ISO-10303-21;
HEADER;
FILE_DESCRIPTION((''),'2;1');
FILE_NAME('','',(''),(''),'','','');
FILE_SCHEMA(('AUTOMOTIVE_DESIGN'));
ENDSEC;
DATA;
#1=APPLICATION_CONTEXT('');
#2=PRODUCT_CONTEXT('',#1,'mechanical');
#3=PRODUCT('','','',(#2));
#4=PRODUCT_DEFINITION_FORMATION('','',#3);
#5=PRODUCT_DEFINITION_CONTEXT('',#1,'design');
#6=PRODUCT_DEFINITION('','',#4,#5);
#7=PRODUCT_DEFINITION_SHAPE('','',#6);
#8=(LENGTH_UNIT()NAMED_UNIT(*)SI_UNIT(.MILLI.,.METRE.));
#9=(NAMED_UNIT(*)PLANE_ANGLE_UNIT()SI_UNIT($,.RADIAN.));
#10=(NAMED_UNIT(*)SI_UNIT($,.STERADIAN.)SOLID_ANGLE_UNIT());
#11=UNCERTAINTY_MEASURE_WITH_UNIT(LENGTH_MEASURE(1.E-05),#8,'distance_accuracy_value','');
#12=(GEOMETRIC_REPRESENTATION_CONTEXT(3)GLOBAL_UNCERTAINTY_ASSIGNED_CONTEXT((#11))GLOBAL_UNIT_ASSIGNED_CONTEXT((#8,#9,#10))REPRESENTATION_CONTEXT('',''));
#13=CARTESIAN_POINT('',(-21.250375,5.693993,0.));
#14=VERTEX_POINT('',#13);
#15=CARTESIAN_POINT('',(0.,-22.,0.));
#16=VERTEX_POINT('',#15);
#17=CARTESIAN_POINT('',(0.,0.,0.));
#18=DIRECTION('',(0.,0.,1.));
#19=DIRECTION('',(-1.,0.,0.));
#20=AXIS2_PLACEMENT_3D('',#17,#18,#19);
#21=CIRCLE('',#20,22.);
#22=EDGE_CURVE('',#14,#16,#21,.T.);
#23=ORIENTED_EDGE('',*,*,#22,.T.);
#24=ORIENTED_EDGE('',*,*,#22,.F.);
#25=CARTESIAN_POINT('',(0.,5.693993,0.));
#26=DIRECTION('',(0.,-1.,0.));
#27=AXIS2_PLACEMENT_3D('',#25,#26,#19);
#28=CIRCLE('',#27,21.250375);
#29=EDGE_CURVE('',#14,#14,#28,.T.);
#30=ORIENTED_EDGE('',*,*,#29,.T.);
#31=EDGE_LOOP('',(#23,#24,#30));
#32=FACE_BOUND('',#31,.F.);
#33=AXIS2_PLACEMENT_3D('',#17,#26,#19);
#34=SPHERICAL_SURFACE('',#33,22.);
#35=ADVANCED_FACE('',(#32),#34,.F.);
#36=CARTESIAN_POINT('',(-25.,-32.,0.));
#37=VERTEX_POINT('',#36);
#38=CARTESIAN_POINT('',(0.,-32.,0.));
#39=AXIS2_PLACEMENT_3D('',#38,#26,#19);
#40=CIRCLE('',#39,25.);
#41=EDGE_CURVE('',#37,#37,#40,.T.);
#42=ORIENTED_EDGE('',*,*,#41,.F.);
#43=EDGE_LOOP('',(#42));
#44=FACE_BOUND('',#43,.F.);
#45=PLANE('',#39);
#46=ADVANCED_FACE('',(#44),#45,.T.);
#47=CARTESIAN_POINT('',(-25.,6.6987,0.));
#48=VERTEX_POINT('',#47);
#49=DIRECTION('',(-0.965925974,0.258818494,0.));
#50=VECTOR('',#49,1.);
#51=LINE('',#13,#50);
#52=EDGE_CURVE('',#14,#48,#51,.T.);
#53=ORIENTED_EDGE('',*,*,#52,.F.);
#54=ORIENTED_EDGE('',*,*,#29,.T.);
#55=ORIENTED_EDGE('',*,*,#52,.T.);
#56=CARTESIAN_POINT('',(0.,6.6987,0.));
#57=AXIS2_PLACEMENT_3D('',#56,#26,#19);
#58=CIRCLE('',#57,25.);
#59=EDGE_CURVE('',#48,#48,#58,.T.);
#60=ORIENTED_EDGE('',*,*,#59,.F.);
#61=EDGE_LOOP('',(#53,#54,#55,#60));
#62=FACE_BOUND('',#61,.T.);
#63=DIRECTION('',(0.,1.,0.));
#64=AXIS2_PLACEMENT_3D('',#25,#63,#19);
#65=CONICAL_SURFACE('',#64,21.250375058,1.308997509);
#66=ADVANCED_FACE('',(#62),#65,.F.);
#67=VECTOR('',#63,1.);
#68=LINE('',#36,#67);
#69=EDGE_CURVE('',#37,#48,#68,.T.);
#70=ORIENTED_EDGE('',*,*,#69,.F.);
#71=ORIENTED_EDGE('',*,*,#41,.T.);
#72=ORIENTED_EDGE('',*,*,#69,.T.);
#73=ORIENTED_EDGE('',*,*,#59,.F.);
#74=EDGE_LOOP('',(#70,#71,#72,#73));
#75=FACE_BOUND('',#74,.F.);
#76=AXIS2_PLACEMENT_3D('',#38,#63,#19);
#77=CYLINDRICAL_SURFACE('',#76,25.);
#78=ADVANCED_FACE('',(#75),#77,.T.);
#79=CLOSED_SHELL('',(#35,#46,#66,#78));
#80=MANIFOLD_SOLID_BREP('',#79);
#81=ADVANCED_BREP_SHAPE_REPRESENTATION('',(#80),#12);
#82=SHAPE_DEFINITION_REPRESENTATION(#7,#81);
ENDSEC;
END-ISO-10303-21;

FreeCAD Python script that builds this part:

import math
import FreeCAD as App
import Part
import Sketcher

V = App.Vector
Q = App.Units.Quantity

doc = App.newDocument("Part")
body = doc.addObject("PartDesign::Body", "Body")

sketch1 = body.newObject("Sketcher::SketchObject", "Sketch")
sketch1.AttachmentSupport = (doc.getObject("XY_Plane"), [""])
sketch1.MapMode = "FlatFace"
sketch1.addGeometry([
    Part.LineSegment(V(0, -22, 0), V(0, -32, 0)),
    Part.LineSegment(V(0, -32, 0), V(-25, -32, 0)),
    Part.LineSegment(V(-25, -32, 0), V(-25, 6.7, 0)),
    Part.LineSegment(V(-25, 6.7, 0), V(-21.3, 5.7, 0)),
    Part.ArcOfCircle(Part.Circle(V(0, 0, 0), V(0, 0, 1), 22), math.radians(165), math.radians(270)),
], False)
sketch1.addConstraint([
    Sketcher.Constraint("Coincident", 0, 2, 1, 1),
    Sketcher.Constraint("Coincident", 1, 2, 2, 1),
    Sketcher.Constraint("Coincident", 2, 2, 3, 1),
    Sketcher.Constraint("Coincident", 3, 2, 4, 1),
    Sketcher.Constraint("Coincident", 4, 2, 0, 1),
    Sketcher.Constraint("Vertical", 0),
    Sketcher.Constraint("Horizontal", 1),
    Sketcher.Constraint("Vertical", 2),
    Sketcher.Constraint("Coincident", 4, 3, -1, 1),
    Sketcher.Constraint("PointOnObject", 0, 2, -2),
    Sketcher.Constraint("Radius", 4, Q("22 mm")),
    Sketcher.Constraint("DistanceX", 1, 2, 1, 1, Q("25 mm")),
    Sketcher.Constraint("DistanceY", 0, 2, 0, 1, Q("10 mm")),
    Sketcher.Constraint("Angle", 3, Q("-15 deg")),
    Sketcher.Constraint("DistanceY", 2, 1, 2, 2, Q("38.6987 mm")),
])
revolution = body.newObject("PartDesign::Revolution", "Revolution")
revolution.Profile = sketch1
revolution.ReferenceAxis = (sketch1, ["V_Axis"])
revolution.Angle = 360

doc.recompute()
